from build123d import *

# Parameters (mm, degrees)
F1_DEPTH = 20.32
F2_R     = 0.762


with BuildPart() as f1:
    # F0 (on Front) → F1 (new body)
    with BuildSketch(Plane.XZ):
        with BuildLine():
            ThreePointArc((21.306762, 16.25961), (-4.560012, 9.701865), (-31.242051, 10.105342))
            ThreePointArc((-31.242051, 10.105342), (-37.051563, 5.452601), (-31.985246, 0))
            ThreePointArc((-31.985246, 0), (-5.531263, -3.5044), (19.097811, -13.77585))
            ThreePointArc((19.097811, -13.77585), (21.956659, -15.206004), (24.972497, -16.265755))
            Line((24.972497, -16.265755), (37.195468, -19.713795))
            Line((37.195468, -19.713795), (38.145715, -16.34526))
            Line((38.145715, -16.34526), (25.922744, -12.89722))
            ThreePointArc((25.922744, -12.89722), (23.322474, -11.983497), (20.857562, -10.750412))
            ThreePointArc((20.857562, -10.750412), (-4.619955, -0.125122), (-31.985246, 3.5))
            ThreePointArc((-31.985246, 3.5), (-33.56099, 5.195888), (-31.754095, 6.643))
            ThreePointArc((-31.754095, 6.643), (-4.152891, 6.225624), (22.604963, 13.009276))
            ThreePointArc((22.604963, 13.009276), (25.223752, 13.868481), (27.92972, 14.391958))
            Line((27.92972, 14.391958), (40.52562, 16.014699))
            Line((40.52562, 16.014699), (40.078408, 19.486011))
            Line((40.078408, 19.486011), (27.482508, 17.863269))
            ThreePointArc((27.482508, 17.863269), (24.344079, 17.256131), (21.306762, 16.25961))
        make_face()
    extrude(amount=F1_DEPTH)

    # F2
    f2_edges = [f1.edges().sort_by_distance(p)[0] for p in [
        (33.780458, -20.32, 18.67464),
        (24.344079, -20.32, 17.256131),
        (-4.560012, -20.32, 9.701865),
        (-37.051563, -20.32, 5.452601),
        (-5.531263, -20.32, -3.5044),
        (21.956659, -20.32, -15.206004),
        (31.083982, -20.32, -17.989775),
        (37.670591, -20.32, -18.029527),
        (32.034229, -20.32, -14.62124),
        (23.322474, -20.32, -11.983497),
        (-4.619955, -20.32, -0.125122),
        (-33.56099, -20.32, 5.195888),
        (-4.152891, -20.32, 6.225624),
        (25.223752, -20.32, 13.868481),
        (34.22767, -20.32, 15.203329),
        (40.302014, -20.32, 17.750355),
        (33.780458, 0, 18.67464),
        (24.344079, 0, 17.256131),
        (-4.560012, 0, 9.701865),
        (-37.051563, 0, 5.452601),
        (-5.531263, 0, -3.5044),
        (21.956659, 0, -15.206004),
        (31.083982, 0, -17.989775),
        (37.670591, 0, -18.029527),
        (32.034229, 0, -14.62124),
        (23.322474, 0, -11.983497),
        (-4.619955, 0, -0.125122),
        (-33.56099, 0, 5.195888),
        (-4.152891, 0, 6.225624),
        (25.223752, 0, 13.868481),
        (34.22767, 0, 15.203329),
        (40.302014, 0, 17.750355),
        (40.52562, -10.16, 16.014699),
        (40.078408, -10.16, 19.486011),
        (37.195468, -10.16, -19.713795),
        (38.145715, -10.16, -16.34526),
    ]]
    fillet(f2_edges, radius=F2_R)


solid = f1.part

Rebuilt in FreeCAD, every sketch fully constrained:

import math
import FreeCAD as App
import Part
import Sketcher

V = App.Vector
Q = App.Units.Quantity

doc = App.newDocument("Part")
body = doc.addObject("PartDesign::Body", "Body")

sketch1 = body.newObject("Sketcher::SketchObject", "Sketch")
sketch1.AttachmentSupport = (doc.getObject("XZ_Plane"), [""])
sketch1.MapMode = "FlatFace"
sketch1.addGeometry(Part.ArcOfCircle(Part.Circle(V(-16.37815, 110.612178, 0), V(0, 0, 1), 101.599999), math.radians(-98.412465), math.radians(-68.227973)), False)
sketch1.addGeometry(Part.ArcOfCircle(Part.Circle(V(-31.985246, 5.08, 0), V(0, 0, 1), 5.08), math.radians(81.587537), math.radians(269.999999)), False)
sketch1.addGeometry(Part.ArcOfCircle(Part.Circle(V(-31.985248, -101.600009, 0), V(0, 0, 1), 101.600009), math.radians(59.81551), math.radians(89.999999)), False)
sketch1.addGeometry(Part.ArcOfCircle(Part.Circle(V(31.868541, 8.180106, 0), V(0, 0, 1), 25.399912), math.radians(-120.184516), math.radians(-105.753469)), False)
sketch1.addGeometry(Part.LineSegment(V(24.972497, -16.265755, 0), V(37.195468, -19.713795, 0)), False)
sketch1.addGeometry(Part.LineSegment(V(37.195468, -19.713795, 0), V(38.145715, -16.34526, 0)), False)
sketch1.addGeometry(Part.LineSegment(V(38.145715, -16.34526, 0), V(25.922744, -12.89722, 0)), False)
sketch1.addGeometry(Part.ArcOfCircle(Part.Circle(V(31.868569, 8.180171, 0), V(0, 0, 1), 21.899983), math.radians(-120.184498), math.radians(-105.75349)), False)
sketch1.addGeometry(Part.ArcOfCircle(Part.Circle(V(-31.985245, -101.599998, 0), V(0, 0, 1), 105.099998), math.radians(59.815508), math.radians(90)), False)
sketch1.addGeometry(Part.ArcOfCircle(Part.Circle(V(-31.985246, 5.08, 0), V(0, 0, 1), 1.58), math.radians(81.587551), math.radians(269.999993)), False)
sketch1.addGeometry(Part.ArcOfCircle(Part.Circle(V(-16.378151, 110.612179, 0), V(0, 0, 1), 105.099999), math.radians(-98.412464), math.radians(-68.227972)), False)
sketch1.addGeometry(Part.ArcOfCircle(Part.Circle(V(30.727994, -7.328547, 0), V(0, 0, 1), 21.900015), math.radians(97.341035), math.radians(111.772021)), False)
sketch1.addGeometry(Part.LineSegment(V(27.92972, 14.391958, 0), V(40.52562, 16.014699, 0)), False)
sketch1.addGeometry(Part.LineSegment(V(40.52562, 16.014699, 0), V(40.078408, 19.486011, 0)), False)
sketch1.addGeometry(Part.LineSegment(V(40.078408, 19.486011, 0), V(27.482508, 17.863269, 0)), False)
sketch1.addGeometry(Part.ArcOfCircle(Part.Circle(V(30.727998, -7.328558, 0), V(0, 0, 1), 25.400027), math.radians(97.34104), math.radians(111.772022)), False)
sketch1.addConstraint(Sketcher.Constraint("Coincident", 0, 1, 1, 1))
sketch1.addConstraint(Sketcher.Constraint("Coincident", 1, 2, 2, 2))
sketch1.addConstraint(Sketcher.Constraint("Coincident", 2, 1, 3, 1))
sketch1.addConstraint(Sketcher.Constraint("Coincident", 3, 2, 4, 1))
sketch1.addConstraint(Sketcher.Constraint("Coincident", 4, 2, 5, 1))
sketch1.addConstraint(Sketcher.Constraint("Coincident", 5, 2, 6, 1))
sketch1.addConstraint(Sketcher.Constraint("Coincident", 6, 2, 7, 2))
sketch1.addConstraint(Sketcher.Constraint("Coincident", 7, 1, 8, 1))
sketch1.addConstraint(Sketcher.Constraint("Coincident", 8, 2, 9, 2))
sketch1.addConstraint(Sketcher.Constraint("Coincident", 9, 1, 10, 1))
sketch1.addConstraint(Sketcher.Constraint("Coincident", 10, 2, 11, 2))
sketch1.addConstraint(Sketcher.Constraint("Coincident", 11, 1, 12, 1))
sketch1.addConstraint(Sketcher.Constraint("Coincident", 12, 2, 13, 1))
sketch1.addConstraint(Sketcher.Constraint("Coincident", 13, 2, 14, 1))
sketch1.addConstraint(Sketcher.Constraint("Coincident", 14, 2, 15, 1))
sketch1.addConstraint(Sketcher.Constraint("Coincident", 15, 2, 0, 2))
sketch1.addConstraint(Sketcher.Constraint("Coincident", 9, 3, 1, 3))
sketch1.addConstraint(Sketcher.Constraint("Coincident", 10, 3, 0, 3))
sketch1.addConstraint(Sketcher.Constraint("PointOnObject", 1, 2, -1))
sketch1.addConstraint(Sketcher.Constraint("Radius", 0, Q("3.9999999 in")))
sketch1.addConstraint(Sketcher.Constraint("Radius", 1, Q("0.2 in")))
sketch1.addConstraint(Sketcher.Constraint("DistanceY", 8, 3, -1, 1, Q("3.9999999 in")))
sketch1.addConstraint(Sketcher.Constraint("Distance", 4, Q("0.5 in")))
sketch1.addConstraint(Sketcher.Constraint("Distance", 6, Q("0.5 in")))
sketch1.addConstraint(Sketcher.Constraint("Distance", 12, Q("0.5 in")))
sketch1.addConstraint(Sketcher.Constraint("Distance", 14, Q("0.5 in")))
sketch1.addConstraint(Sketcher.Constraint("Radius", 9, Q("1.58 mm")))
sketch1.addConstraint(Sketcher.Constraint("Radius", 2, Q("101.600009 mm")))
sketch1.addConstraint(Sketcher.Constraint("DistanceX", -1, 1, 5, 2, Q("1.5017998 in")))
sketch1.addConstraint(Sketcher.Constraint("DistanceY", -1, 1, 12, 2, Q("0.6305 in")))
sketch1.addConstraint(Sketcher.Constraint("Radius", 3, Q("25.399912 mm")))
sketch1.addConstraint(Sketcher.Constraint("Radius", 7, Q("21.899983 mm")))
sketch1.addConstraint(Sketcher.Constraint("Radius", 11, Q("21.900015 mm")))
sketch1.addConstraint(Sketcher.Constraint("Radius", 15, Q("25.400027 mm")))
sketch1.addConstraint(Sketcher.Constraint("DistanceX", 7, 1, 15, 3, Q("0.3885998 in")))
sketch1.addConstraint(Sketcher.Constraint("Distance", 5, Q("3.5 mm")))
sketch1.addConstraint(Sketcher.Constraint("Distance", 13, Q("3.500001 mm")))
sketch1.addConstraint(Sketcher.Constraint("DistanceY", -1, 1, 9, 1, Q("6.643 mm")))
sketch1.addConstraint(Sketcher.Constraint("DistanceX", 2, 3, 0, 3, Q("15.607098 mm")))
sketch1.addConstraint(Sketcher.Constraint("DistanceX", 3, 2, 15, 3, Q("5.755501 mm")))
sketch1.addConstraint(Sketcher.Constraint("DistanceY", 4, 2, 3, 3, Q("27.893901 mm")))
sketch1.addConstraint(Sketcher.Constraint("DistanceY", 5, 2, 15, 3, Q("9.016702 mm")))
sketch1.addConstraint(Sketcher.Constraint("DistanceX", 7, 1, 10, 2, Q("1.747401 mm")))
sketch1.addConstraint(Sketcher.Constraint("DistanceX", 14, 2, 13, 2, Q("12.5959 mm")))
sketch1.addConstraint(Sketcher.Constraint("DistanceX", 15, 2, 10, 2, Q("1.298201 mm")))
sketch1.addConstraint(Sketcher.Constraint("DistanceX", 0, 3, -1, 1, Q("16.37815 mm")))
sketch1.addConstraint(Sketcher.Constraint("DistanceY", -1, 1, 0, 3, Q("110.612178 mm")))
sketch1.addConstraint(Sketcher.Constraint("DistanceX", -1, 1, 3, 3, Q("31.868541 mm")))
sketch1.addConstraint(Sketcher.Constraint("DistanceX", -1, 1, 7, 3, Q("31.868569 mm")))
sketch1.addConstraint(Sketcher.Constraint("DistanceY", -1, 1, 7, 3, Q("8.180171 mm")))
sketch1.addConstraint(Sketcher.Constraint("DistanceX", 0, 1, -1, 1, Q("31.242051 mm")))
sketch1.addConstraint(Sketcher.Constraint("DistanceX", -1, 1, 2, 1, Q("19.097811 mm")))
sketch1.addConstraint(Sketcher.Constraint("DistanceX", -1, 1, 13, 2, Q("40.078408 mm")))
sketch1.addConstraint(Sketcher.Constraint("DistanceY", 11, 3, 7, 3, Q("15.508718 mm")))
sketch1.addConstraint(Sketcher.Constraint("DistanceX", 1, 2, 11, 3, Q("62.71324 mm")))
sketch1.addConstraint(Sketcher.Constraint("DistanceX", 8, 2, 9, 1, Q("0.231151 mm")))
pad1 = body.newObject("PartDesign::Pad", "Pad")
pad1.Profile = sketch1
pad1.Length = Q("0.8 in")
doc.recompute()

fillet = body.newObject("PartDesign::Fillet", "Fillet")
fillet.Base = (pad1, ["Edge1"])
fillet.UseAllEdges = True
fillet.Radius = Q("0.03 in")

doc.recompute()
